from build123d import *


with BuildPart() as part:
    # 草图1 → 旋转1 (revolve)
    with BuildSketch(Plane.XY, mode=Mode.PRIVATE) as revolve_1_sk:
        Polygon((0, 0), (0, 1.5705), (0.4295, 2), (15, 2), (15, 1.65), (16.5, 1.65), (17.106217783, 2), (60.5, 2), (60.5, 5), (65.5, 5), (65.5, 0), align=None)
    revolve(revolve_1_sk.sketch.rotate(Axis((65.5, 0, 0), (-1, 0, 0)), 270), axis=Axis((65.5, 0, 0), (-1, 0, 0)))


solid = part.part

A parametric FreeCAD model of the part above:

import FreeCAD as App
import Part
import Sketcher

V = App.Vector
Q = App.Units.Quantity


def add_polygon(sketch, points):
    """Adds a closed chain of lines whose ends are joined by coincident constraints."""
    first, n = sketch.GeometryCount, len(points)
    for a, b in zip(points, points[1:] + points[:1]):
        sketch.addGeometry(Part.LineSegment(App.Vector(*a, 0), App.Vector(*b, 0)), False)
    for i in range(n):
        sketch.addConstraint(Sketcher.Constraint("Coincident", first + i, 2, first + (i + 1) % n, 1))

doc = App.newDocument("Part")
body = doc.addObject("PartDesign::Body", "Body")

# Sketch on XY plane
sketch1 = doc.addObject("Sketcher::SketchObject", "Sketch")
body.addObject(sketch1)
sketch1.AttachmentSupport = (doc.XY_Plane, [""])
sketch1.MapMode = "FlatFace"
add_polygon(sketch1, [(0, 1.5705), (0, 0), (65.5, 0), (65.5, 5), (60.5, 5), (60.5, 2), (17.106218, 2), (16.5, 1.65), (15, 1.65), (15, 2), (0.4295, 2)])  # lines 0-10
sketch1.addConstraint([
    Sketcher.Constraint("Vertical", 0),
    Sketcher.Constraint("Horizontal", 1),
    Sketcher.Constraint("Vertical", 2),
    Sketcher.Constraint("Horizontal", 3),
    Sketcher.Constraint("Vertical", 4),
    Sketcher.Constraint("Horizontal", 5),
    Sketcher.Constraint("Horizontal", 7),
    Sketcher.Constraint("Vertical", 8),
    Sketcher.Constraint("Horizontal", 9),
    Sketcher.Constraint("Coincident", 0, 2, -1, 1),
    Sketcher.Constraint("Horizontal", 5, 2, 8, 2),
    Sketcher.Constraint("Equal", 3, 2),
    Sketcher.Constraint("DistanceX", 3, 2, 3, 1, 5.0),
    Sketcher.Constraint("DistanceY", 4, 2, 4, 1, 3.0),
    Sketcher.Constraint("Angle", 6, Q("-150 deg")),
    Sketcher.Constraint("Angle", 10, Q("-135 deg")),
    Sketcher.Constraint("DistanceX", 1, 1, 1, 2, 65.5),
    Sketcher.Constraint("DistanceX", 7, 2, 7, 1, 1.5),
    Sketcher.Constraint("DistanceX", -1, 1, 7, 2, 15.0),
    Sketcher.Constraint("Distance", 6, 0.7),
    Sketcher.Constraint("DistanceX", 9, 2, 9, 1, 14.5705),
])
revolution = doc.addObject("PartDesign::Revolution", "Revolution")
body.addObject(revolution)
revolution.Profile = sketch1
revolution.ReferenceAxis = (sketch1, ["H_Axis"])
revolution.Angle = 360

doc.recompute()
